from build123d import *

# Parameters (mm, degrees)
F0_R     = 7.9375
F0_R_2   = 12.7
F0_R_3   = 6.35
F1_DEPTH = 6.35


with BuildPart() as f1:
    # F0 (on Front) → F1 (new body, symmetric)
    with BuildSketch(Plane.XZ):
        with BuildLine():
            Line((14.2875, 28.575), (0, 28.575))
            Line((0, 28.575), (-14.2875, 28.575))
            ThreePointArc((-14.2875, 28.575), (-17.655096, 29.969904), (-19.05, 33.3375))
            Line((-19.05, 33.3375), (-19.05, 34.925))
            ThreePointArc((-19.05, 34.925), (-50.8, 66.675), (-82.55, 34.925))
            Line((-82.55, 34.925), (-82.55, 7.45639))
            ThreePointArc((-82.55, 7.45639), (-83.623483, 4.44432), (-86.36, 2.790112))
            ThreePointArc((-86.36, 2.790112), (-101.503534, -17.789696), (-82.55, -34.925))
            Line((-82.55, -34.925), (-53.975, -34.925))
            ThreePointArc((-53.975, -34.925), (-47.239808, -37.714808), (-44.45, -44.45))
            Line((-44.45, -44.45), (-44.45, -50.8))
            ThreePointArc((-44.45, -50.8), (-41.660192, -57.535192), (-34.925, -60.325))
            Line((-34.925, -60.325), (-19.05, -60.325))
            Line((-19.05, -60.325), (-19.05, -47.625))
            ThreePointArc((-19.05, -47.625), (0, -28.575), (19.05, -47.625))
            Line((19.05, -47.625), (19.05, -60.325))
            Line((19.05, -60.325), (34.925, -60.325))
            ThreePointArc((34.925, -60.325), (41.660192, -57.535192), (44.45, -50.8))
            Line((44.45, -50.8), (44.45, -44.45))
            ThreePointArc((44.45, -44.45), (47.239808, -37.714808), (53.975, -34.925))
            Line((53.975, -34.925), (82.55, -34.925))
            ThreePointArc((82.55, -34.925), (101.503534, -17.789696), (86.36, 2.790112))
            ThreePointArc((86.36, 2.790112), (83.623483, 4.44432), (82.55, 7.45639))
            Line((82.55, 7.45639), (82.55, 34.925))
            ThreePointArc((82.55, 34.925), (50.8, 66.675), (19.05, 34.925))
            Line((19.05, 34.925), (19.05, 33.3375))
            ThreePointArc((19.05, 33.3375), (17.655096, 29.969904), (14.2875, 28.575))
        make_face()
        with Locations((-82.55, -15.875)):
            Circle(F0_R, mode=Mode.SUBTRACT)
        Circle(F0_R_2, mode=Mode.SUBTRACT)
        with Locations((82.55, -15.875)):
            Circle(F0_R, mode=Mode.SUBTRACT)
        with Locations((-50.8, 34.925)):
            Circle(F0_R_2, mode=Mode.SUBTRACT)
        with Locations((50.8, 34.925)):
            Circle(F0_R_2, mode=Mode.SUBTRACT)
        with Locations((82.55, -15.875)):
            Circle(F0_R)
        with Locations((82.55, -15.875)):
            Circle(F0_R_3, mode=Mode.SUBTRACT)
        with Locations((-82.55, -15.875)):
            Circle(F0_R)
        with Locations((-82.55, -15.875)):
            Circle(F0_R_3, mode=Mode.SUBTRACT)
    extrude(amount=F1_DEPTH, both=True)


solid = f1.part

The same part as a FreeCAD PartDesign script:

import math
import FreeCAD as App
import Part
import Sketcher
Q = App.Units.Quantity

doc = App.newDocument("Part")
params = doc.addObject("Spreadsheet::Sheet", "Params")
for row, (alias, value) in enumerate([
    ("sketch1_diameter", "1 in"),
    ("sketch1_diameter2", "0.5 in"),
    ("sketch1_radius", "1.25 in"),
    ("sketch1_radius2", "0.75 in"),
    ("sketch1_height", "0.5 in"),
    ("pad1_length", "0.5 in"),
], start=1):
    params.set(f"A{row}", alias)
    params.set(f"B{row}", "=" + value)
    params.setAlias(f"B{row}", alias)

body = doc.addObject("PartDesign::Body", "Body")

# Sketch on XZ plane
sketch1 = body.newObject("Sketcher::SketchObject", "Sketch")
sketch1.AttachmentSupport = (doc.getObject("XZ_Plane"), [""])
sketch1.MapMode = "FlatFace"
sketch1.addGeometry(Part.LineSegment(App.Vector(14.3, 28.6, 0), App.Vector(-14.3, 28.6, 0)), False)
sketch1.addGeometry(Part.ArcOfCircle(Part.Circle(App.Vector(-14.3, 33.3, 0), App.Vector(0, 0, 1), 4.8), math.radians(-180), math.radians(-90)), False)
sketch1.addGeometry(Part.LineSegment(App.Vector(-19.1, 33.3, 0), App.Vector(-19.1, 34.9, 0)), False)
sketch1.addGeometry(Part.ArcOfCircle(Part.Circle(App.Vector(-50.8, 34.9, 0), App.Vector(0, 0, 1), 31.8), math.radians(0), math.radians(180)), False)
sketch1.addGeometry(Part.LineSegment(App.Vector(-82.5, 34.9, 0), App.Vector(-82.5, 7.5, 0)), False)
sketch1.addGeometry(Part.ArcOfCircle(Part.Circle(App.Vector(-87.3, 7.5, 0), App.Vector(0, 0, 1), 4.8), math.radians(-78), math.radians(0)), False)
sketch1.addGeometry(Part.ArcOfCircle(Part.Circle(App.Vector(-82.6, -15.9, 0), App.Vector(0, 0, 1), 19.1), math.radians(102), math.radians(270)), False)
sketch1.addGeometry(Part.LineSegment(App.Vector(-82.5, -34.9, 0), App.Vector(-54, -34.9, 0)), False)
sketch1.addGeometry(Part.ArcOfCircle(Part.Circle(App.Vector(-54, -44.5, 0), App.Vector(0, 0, 1), 9.5), math.radians(0), math.radians(90)), False)
sketch1.addGeometry(Part.LineSegment(App.Vector(-44.5, -44.5, 0), App.Vector(-44.5, -50.8, 0)), False)
sketch1.addGeometry(Part.ArcOfCircle(Part.Circle(App.Vector(-34.9, -50.8, 0), App.Vector(0, 0, 1), 9.5), math.radians(-180), math.radians(-90)), False)
sketch1.addGeometry(Part.LineSegment(App.Vector(-34.9, -60.3, 0), App.Vector(-19.1, -60.3, 0)), False)
sketch1.addGeometry(Part.LineSegment(App.Vector(-19.1, -60.3, 0), App.Vector(-19.1, -47.6, 0)), False)
sketch1.addGeometry(Part.ArcOfCircle(Part.Circle(App.Vector(0, -47.6, 0), App.Vector(0, 0, 1), 19.1), math.radians(0), math.radians(180)), False)
sketch1.addGeometry(Part.LineSegment(App.Vector(19.1, -47.6, 0), App.Vector(19.1, -60.3, 0)), False)
sketch1.addGeometry(Part.LineSegment(App.Vector(19.1, -60.3, 0), App.Vector(34.9, -60.3, 0)), False)
sketch1.addGeometry(Part.ArcOfCircle(Part.Circle(App.Vector(34.9, -50.8, 0), App.Vector(0, 0, 1), 9.5), math.radians(-90), math.radians(0)), False)
sketch1.addGeometry(Part.LineSegment(App.Vector(44.5, -50.8, 0), App.Vector(44.5, -44.5, 0)), False)
sketch1.addGeometry(Part.ArcOfCircle(Part.Circle(App.Vector(54, -44.5, 0), App.Vector(0, 0, 1), 9.5), math.radians(90), math.radians(180)), False)
sketch1.addGeometry(Part.LineSegment(App.Vector(54, -34.9, 0), App.Vector(82.5, -34.9, 0)), False)
sketch1.addGeometry(Part.ArcOfCircle(Part.Circle(App.Vector(82.6, -15.9, 0), App.Vector(0, 0, 1), 19.1), math.radians(-90), math.radians(78)), False)
sketch1.addGeometry(Part.ArcOfCircle(Part.Circle(App.Vector(87.3, 7.5, 0), App.Vector(0, 0, 1), 4.8), math.radians(180), math.radians(258)), False)
sketch1.addGeometry(Part.LineSegment(App.Vector(82.5, 7.5, 0), App.Vector(82.5, 34.9, 0)), False)
sketch1.addGeometry(Part.ArcOfCircle(Part.Circle(App.Vector(50.8, 34.9, 0), App.Vector(0, 0, 1), 31.8), math.radians(0), math.radians(180)), False)
sketch1.addGeometry(Part.LineSegment(App.Vector(19.1, 34.9, 0), App.Vector(19.1, 33.3, 0)), False)
sketch1.addGeometry(Part.ArcOfCircle(Part.Circle(App.Vector(14.3, 33.3, 0), App.Vector(0, 0, 1), 4.8), math.radians(-90), math.radians(0)), False)
sketch1.addGeometry(Part.Circle(App.Vector(-82.5, -15.9, 0), App.Vector(0, 0, 1), 6.3), False)
sketch1.addGeometry(Part.Circle(App.Vector(82.5, -15.9, 0), App.Vector(0, 0, 1), 6.3), False)
sketch1.addGeometry(Part.Circle(App.Vector(0, 0, 0), App.Vector(0, 0, 1), 12.7), False)
sketch1.addGeometry(Part.Circle(App.Vector(-50.8, 34.9, 0), App.Vector(0, 0, 1), 12.7), False)
sketch1.addGeometry(Part.Circle(App.Vector(50.8, 34.9, 0), App.Vector(0, 0, 1), 12.7), False)
sketch1.addConstraint(Sketcher.Constraint("Tangent", 0, 2, 1, 2))
sketch1.addConstraint(Sketcher.Constraint("Tangent", 1, 1, 2, 1))
sketch1.addConstraint(Sketcher.Constraint("Tangent", 2, 2, 3, 1))
sketch1.addConstraint(Sketcher.Constraint("Tangent", 3, 2, 4, 1))
sketch1.addConstraint(Sketcher.Constraint("Tangent", 4, 2, 5, 2))
sketch1.addConstraint(Sketcher.Constraint("Tangent", 5, 1, 6, 1))
sketch1.addConstraint(Sketcher.Constraint("Tangent", 6, 2, 7, 1))
sketch1.addConstraint(Sketcher.Constraint("Tangent", 7, 2, 8, 2))
sketch1.addConstraint(Sketcher.Constraint("Tangent", 8, 1, 9, 1))
sketch1.addConstraint(Sketcher.Constraint("Tangent", 9, 2, 10, 1))
sketch1.addConstraint(Sketcher.Constraint("Tangent", 10, 2, 11, 1))
sketch1.addConstraint(Sketcher.Constraint("Coincident", 11, 2, 12, 1))
sketch1.addConstraint(Sketcher.Constraint("Tangent", 12, 2, 13, 2))
sketch1.addConstraint(Sketcher.Constraint("Tangent", 13, 1, 14, 1))
sketch1.addConstraint(Sketcher.Constraint("Coincident", 14, 2, 15, 1))
sketch1.addConstraint(Sketcher.Constraint("Tangent", 15, 2, 16, 1))
sketch1.addConstraint(Sketcher.Constraint("Tangent", 16, 2, 17, 1))
sketch1.addConstraint(Sketcher.Constraint("Tangent", 17, 2, 18, 2))
sketch1.addConstraint(Sketcher.Constraint("Tangent", 18, 1, 19, 1))
sketch1.addConstraint(Sketcher.Constraint("Tangent", 19, 2, 20, 1))
sketch1.addConstraint(Sketcher.Constraint("Tangent", 20, 2, 21, 2))
sketch1.addConstraint(Sketcher.Constraint("Tangent", 21, 1, 22, 1))
sketch1.addConstraint(Sketcher.Constraint("Tangent", 22, 2, 23, 1))
sketch1.addConstraint(Sketcher.Constraint("Tangent", 23, 2, 24, 1))
sketch1.addConstraint(Sketcher.Constraint("Tangent", 24, 2, 25, 2))
sketch1.addConstraint(Sketcher.Constraint("Tangent", 25, 1, 0, 1))
sketch1.addConstraint(Sketcher.Constraint("Horizontal", 0))
sketch1.addConstraint(Sketcher.Constraint("Vertical", 2))
sketch1.addConstraint(Sketcher.Constraint("Vertical", 4))
sketch1.addConstraint(Sketcher.Constraint("Horizontal", 7))
sketch1.addConstraint(Sketcher.Constraint("Vertical", 9))
sketch1.addConstraint(Sketcher.Constraint("Horizontal", 11))
sketch1.addConstraint(Sketcher.Constraint("Vertical", 12))
sketch1.addConstraint(Sketcher.Constraint("Vertical", 14))
sketch1.addConstraint(Sketcher.Constraint("Horizontal", 15))
sketch1.addConstraint(Sketcher.Constraint("Vertical", 17))
sketch1.addConstraint(Sketcher.Constraint("Horizontal", 19))
sketch1.addConstraint(Sketcher.Constraint("Vertical", 22))
sketch1.addConstraint(Sketcher.Constraint("Vertical", 24))
sketch1.addConstraint(Sketcher.Constraint("Coincident", 28, 3, -1, 1))
sketch1.addConstraint(Sketcher.Constraint("Coincident", 26, 3, 6, 3))
sketch1.addConstraint(Sketcher.Constraint("Coincident", 27, 3, 20, 3))
sketch1.addConstraint(Sketcher.Constraint("Coincident", 29, 3, 3, 3))
sketch1.addConstraint(Sketcher.Constraint("Coincident", 30, 3, 23, 3))
sketch1.addConstraint(Sketcher.Constraint("Equal", 8, 10))
sketch1.addConstraint(Sketcher.Constraint("Equal", 6, 13))
sketch1.addConstraint(Sketcher.Constraint("Equal", 10, 16))
sketch1.addConstraint(Sketcher.Constraint("Equal", 16, 18))
sketch1.addConstraint(Sketcher.Constraint("Equal", 13, 20))
sketch1.addConstraint(Sketcher.Constraint("Equal", 5, 21))
sketch1.addConstraint(Sketcher.Constraint("Equal", 3, 23))
sketch1.addConstraint(Sketcher.Constraint("Equal", 1, 25))
sketch1.addConstraint(Sketcher.Constraint("Equal", 26, 27))
sketch1.addConstraint(Sketcher.Constraint("Equal", 28, 29))
sketch1.addConstraint(Sketcher.Constraint("Equal", 29, 30))
sketch1.addConstraint(Sketcher.Constraint("Symmetric", 3, 2, 19, 2, -1, 1))
sketch1.addConstraint(Sketcher.Constraint("Symmetric", 6, 2, 22, 2, -1, 1))
sketch1.addConstraint(Sketcher.Constraint("Symmetric", 10, 3, 16, 3, -2))
sketch1.addConstraint(Sketcher.Constraint("Symmetric", 6, 3, 20, 3, -2))
sketch1.addConstraint(Sketcher.Constraint("PointOnObject", 13, 3, -2))
sketch1.addConstraint(Sketcher.Constraint("Vertical", 2, 2, 11, 2))
sketch1.addConstraint(Sketcher.Constraint("Equal", 0, 7))
sketch1.addConstraint(Sketcher.Constraint("Diameter", 28, Q("1 in")))
sketch1.addConstraint(Sketcher.Constraint("Diameter", 26, Q("0.5 in")))
sketch1.addConstraint(Sketcher.Constraint("Radius", 3, Q("1.25 in")))
sketch1.addConstraint(Sketcher.Constraint("Radius", 6, Q("0.75 in")))
sketch1.addConstraint(Sketcher.Constraint("DistanceY", 12, 1, 12, 2, Q("0.5 in")))
sketch1.addConstraint(Sketcher.Constraint("DistanceY", 10, 3, -1, 1, Q("2 in")))
sketch1.addConstraint(Sketcher.Constraint("Radius", 1, Q("0.1875 in")))
sketch1.addConstraint(Sketcher.Constraint("Radius", 5, Q("0.1874999 in")))
sketch1.addConstraint(Sketcher.Constraint("Radius", 8, Q("0.375 in")))
sketch1.addConstraint(Sketcher.Constraint("DistanceY", 6, 3, 3, 3, Q("2 in")))
sketch1.addConstraint(Sketcher.Constraint("DistanceY", 2, 1, 2, 2, Q("0.0625 in")))
sketch1.setExpression("Constraints[62]", "Params.sketch1_diameter")
sketch1.setExpression("Constraints[63]", "Params.sketch1_diameter2")
sketch1.setExpression("Constraints[64]", "Params.sketch1_radius")
sketch1.setExpression("Constraints[65]", "Params.sketch1_radius2")
sketch1.setExpression("Constraints[66]", "Params.sketch1_height")
pad1 = body.newObject("PartDesign::Pad", "Pad")
pad1.Profile = sketch1
pad1.setExpression("Length", "Params.pad1_length")
pad1.Midplane = True

doc.recompute()
